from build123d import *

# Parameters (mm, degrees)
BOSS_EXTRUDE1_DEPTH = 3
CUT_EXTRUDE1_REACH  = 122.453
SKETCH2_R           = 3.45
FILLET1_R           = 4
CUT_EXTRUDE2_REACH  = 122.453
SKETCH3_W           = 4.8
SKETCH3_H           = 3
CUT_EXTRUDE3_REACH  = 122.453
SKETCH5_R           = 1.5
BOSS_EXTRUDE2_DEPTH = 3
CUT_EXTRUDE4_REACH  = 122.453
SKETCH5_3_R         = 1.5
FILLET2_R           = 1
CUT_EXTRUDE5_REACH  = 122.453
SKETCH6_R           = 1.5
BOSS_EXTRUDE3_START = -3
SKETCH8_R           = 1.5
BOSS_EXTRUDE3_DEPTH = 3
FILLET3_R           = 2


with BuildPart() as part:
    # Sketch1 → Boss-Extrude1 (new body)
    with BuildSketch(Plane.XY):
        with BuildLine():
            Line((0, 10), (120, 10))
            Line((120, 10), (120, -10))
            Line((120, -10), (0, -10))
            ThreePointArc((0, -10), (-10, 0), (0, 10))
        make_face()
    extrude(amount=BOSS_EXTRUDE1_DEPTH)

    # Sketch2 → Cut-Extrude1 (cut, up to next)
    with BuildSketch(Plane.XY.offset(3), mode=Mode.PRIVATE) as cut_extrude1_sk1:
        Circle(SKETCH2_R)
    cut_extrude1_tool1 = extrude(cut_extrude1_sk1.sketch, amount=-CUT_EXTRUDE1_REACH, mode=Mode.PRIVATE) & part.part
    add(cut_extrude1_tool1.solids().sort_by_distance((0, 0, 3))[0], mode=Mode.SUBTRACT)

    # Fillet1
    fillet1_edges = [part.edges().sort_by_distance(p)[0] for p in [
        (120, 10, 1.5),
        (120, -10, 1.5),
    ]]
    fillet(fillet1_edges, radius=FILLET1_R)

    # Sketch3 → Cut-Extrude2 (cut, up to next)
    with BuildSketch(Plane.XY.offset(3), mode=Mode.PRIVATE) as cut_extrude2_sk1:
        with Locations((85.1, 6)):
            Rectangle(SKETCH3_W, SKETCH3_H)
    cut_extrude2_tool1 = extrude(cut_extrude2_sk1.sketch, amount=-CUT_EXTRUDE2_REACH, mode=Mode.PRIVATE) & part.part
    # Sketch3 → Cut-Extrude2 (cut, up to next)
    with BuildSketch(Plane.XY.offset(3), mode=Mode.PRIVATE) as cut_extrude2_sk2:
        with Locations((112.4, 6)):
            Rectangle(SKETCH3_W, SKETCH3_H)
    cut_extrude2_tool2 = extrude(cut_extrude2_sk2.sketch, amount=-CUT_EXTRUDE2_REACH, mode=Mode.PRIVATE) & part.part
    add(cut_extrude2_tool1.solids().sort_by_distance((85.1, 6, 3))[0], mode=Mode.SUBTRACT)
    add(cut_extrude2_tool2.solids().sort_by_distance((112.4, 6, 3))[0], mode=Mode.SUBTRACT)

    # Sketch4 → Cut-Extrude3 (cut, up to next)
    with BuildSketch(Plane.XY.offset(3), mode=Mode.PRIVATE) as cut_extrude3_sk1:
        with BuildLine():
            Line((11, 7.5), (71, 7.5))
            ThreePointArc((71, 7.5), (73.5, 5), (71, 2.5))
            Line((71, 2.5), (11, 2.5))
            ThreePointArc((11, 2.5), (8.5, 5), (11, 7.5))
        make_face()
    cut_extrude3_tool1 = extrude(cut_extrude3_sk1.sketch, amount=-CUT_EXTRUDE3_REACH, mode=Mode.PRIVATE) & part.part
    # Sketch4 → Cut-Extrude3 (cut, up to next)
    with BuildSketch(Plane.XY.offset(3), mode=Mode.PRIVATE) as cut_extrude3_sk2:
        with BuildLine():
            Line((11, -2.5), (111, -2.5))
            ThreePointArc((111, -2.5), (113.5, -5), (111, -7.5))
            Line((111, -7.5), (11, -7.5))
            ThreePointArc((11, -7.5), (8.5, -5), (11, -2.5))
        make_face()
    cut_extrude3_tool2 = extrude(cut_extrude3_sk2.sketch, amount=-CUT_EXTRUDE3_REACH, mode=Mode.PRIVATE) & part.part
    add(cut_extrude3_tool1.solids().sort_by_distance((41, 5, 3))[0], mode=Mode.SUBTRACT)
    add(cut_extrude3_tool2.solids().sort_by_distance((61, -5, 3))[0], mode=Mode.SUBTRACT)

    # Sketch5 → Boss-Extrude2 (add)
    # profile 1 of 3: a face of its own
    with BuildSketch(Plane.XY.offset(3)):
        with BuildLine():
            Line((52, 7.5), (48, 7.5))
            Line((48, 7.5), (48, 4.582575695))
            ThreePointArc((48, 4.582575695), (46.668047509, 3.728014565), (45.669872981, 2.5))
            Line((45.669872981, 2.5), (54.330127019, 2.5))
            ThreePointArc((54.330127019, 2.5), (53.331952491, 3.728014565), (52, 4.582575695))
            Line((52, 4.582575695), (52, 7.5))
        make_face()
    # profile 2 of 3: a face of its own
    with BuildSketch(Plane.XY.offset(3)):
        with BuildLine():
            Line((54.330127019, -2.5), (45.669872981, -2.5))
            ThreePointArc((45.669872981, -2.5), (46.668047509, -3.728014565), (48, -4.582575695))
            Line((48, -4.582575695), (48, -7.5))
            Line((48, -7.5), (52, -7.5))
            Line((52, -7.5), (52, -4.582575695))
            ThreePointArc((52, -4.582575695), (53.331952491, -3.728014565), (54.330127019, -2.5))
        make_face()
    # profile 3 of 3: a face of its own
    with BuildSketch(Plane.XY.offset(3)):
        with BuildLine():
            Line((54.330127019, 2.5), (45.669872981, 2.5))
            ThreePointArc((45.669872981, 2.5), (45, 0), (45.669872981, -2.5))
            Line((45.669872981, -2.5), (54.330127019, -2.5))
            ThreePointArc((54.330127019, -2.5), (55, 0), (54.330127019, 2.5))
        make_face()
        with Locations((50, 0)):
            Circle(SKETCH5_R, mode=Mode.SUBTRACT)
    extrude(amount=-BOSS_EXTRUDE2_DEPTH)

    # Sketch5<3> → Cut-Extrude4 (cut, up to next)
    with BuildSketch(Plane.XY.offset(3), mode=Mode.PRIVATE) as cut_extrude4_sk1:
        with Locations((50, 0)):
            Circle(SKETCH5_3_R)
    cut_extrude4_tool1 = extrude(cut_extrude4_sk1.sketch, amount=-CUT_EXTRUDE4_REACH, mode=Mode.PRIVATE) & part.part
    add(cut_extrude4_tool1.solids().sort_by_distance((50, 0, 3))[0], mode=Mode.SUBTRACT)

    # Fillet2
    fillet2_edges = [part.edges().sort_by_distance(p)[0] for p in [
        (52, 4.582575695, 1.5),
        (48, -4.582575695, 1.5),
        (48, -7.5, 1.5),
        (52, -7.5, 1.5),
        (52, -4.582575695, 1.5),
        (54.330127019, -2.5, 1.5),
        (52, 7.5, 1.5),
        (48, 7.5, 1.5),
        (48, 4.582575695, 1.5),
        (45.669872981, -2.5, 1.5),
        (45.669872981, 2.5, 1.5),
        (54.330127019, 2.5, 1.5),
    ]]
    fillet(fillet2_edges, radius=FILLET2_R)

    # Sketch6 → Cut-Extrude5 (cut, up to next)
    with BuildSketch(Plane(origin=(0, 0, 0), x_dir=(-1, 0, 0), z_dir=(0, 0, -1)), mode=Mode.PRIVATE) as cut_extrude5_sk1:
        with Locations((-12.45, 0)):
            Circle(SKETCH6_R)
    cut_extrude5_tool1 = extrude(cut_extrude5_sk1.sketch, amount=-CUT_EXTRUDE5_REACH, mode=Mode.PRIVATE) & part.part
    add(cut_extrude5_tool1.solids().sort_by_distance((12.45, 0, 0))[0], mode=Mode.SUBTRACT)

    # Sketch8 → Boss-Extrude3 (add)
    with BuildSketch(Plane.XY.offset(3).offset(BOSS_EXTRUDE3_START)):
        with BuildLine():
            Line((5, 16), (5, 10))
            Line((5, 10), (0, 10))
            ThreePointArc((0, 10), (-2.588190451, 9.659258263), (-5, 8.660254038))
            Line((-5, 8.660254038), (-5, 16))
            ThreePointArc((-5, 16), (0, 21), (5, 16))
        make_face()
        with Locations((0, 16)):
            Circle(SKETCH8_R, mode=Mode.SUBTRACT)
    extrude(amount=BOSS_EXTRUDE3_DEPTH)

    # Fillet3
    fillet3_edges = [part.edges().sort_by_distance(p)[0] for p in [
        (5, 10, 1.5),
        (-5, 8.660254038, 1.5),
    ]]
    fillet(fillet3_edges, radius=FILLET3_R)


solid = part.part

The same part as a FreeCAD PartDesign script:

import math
import FreeCAD as App
import Part
import Sketcher
from FreeCAD import Vector


def edges_at(feature, points):
    """Names of the edges that pass closest to the given points."""
    edges = feature.Shape.Edges
    near = lambda p: min(range(len(edges)), key=lambda i: edges[i].distToShape(Part.Vertex(*p))[0])
    return sorted({f"Edge{near(p) + 1}" for p in points})


def add_polygon(sketch, points):
    """Adds a closed chain of lines whose ends are joined by coincident constraints."""
    first, n = sketch.GeometryCount, len(points)
    for a, b in zip(points, points[1:] + points[:1]):
        sketch.addGeometry(Part.LineSegment(App.Vector(*a, 0), App.Vector(*b, 0)), False)
    for i in range(n):
        sketch.addConstraint(Sketcher.Constraint("Coincident", first + i, 2, first + (i + 1) % n, 1))

doc = App.newDocument("Part")
body = doc.addObject("PartDesign::Body", "Body")

# Sketch on XY plane
sketch1 = body.newObject("Sketcher::SketchObject", "Sketch")
sketch1.AttachmentSupport = (doc.getObject("XY_Plane"), [""])
sketch1.MapMode = "FlatFace"
sketch1.addGeometry(Part.LineSegment(Vector(120, 10, 0), Vector(0, 10, 0)), False)
sketch1.addGeometry(Part.ArcOfCircle(Part.Circle(Vector(0, 0, 0), Vector(0, 0, 1), 10), math.radians(90), math.radians(270)), False)
sketch1.addGeometry(Part.LineSegment(Vector(0, -10, 0), Vector(120, -10, 0)), False)
sketch1.addGeometry(Part.LineSegment(Vector(120, -10, 0), Vector(120, 10, 0)), False)
sketch1.addConstraint(Sketcher.Constraint("Tangent", 0, 2, 1, 1))
sketch1.addConstraint(Sketcher.Constraint("Tangent", 1, 2, 2, 1))
sketch1.addConstraint(Sketcher.Constraint("Coincident", 2, 2, 3, 1))
sketch1.addConstraint(Sketcher.Constraint("Coincident", 3, 2, 0, 1))
sketch1.addConstraint(Sketcher.Constraint("Horizontal", 0))
sketch1.addConstraint(Sketcher.Constraint("Horizontal", 2))
sketch1.addConstraint(Sketcher.Constraint("Vertical", 3))
sketch1.addConstraint(Sketcher.Constraint("Coincident", 1, 3, -1, 1))
sketch1.addConstraint(Sketcher.Constraint("Radius", 1, 10.0))
sketch1.addConstraint(Sketcher.Constraint("DistanceX", 0, 2, 0, 1, 120.0))
pad1 = body.newObject("PartDesign::Pad", "Pad")
pad1.Profile = sketch1
pad1.Length = 3

# Sketch on XY plane
sketch2 = body.newObject("Sketcher::SketchObject", "Sketch001")
sketch2.AttachmentSupport = (doc.getObject("XY_Plane"), [""])
sketch2.MapMode = "FlatFace"
sketch2.AttachmentOffset = App.Placement(Vector(0, 0, 3), App.Rotation())
sketch2.addGeometry(Part.Circle(Vector(0, 0, 0), Vector(0, 0, 1), 3.5), False)
sketch2.addConstraint(Sketcher.Constraint("Coincident", 0, 3, -1, 1))
sketch2.addConstraint(Sketcher.Constraint("Diameter", 0, 6.9))
pocket1 = body.newObject("PartDesign::Pocket", "Pocket")
pocket1.Profile = sketch2
pocket1.Type = "UpToFirst"
doc.recompute()

fillet = body.newObject("PartDesign::Fillet", "Fillet")
fillet.Base = (pocket1, edges_at(pocket1, [(120, 10, 1.5), (120, -10, 1.5)]))
fillet.Radius = 4

# Sketch on XY plane
sketch3 = body.newObject("Sketcher::SketchObject", "Sketch002")
sketch3.AttachmentSupport = (doc.getObject("XY_Plane"), [""])
sketch3.MapMode = "FlatFace"
sketch3.AttachmentOffset = App.Placement(Vector(0, 0, 3), App.Rotation())
add_polygon(sketch3, [(82.7, 7.5), (82.7, 4.5), (87.5, 4.5), (87.5, 7.5)])  # lines 0-3
sketch3.addConstraint(Sketcher.Constraint("Vertical", 0))
sketch3.addConstraint(Sketcher.Constraint("Horizontal", 1))
sketch3.addConstraint(Sketcher.Constraint("Vertical", 2))
sketch3.addConstraint(Sketcher.Constraint("Horizontal", 3))
sketch3.addConstraint(Sketcher.Constraint("DistanceY", 0, 2, 0, 1, 3.0))
sketch3.addConstraint(Sketcher.Constraint("DistanceX", 1, 1, 1, 2, 4.8))
sketch3.addConstraint(Sketcher.Constraint("DistanceX", -1, 1, 0, 2, 82.7))
sketch3.addConstraint(Sketcher.Constraint("DistanceY", -1, 1, 0, 2, 4.5))
pocket2 = body.newObject("PartDesign::Pocket", "Pocket001")
pocket2.Profile = sketch3
pocket2.Type = "UpToFirst"

# Sketch on XY plane
sketch4 = body.newObject("Sketcher::SketchObject", "Sketch003")
sketch4.AttachmentSupport = (doc.getObject("XY_Plane"), [""])
sketch4.MapMode = "FlatFace"
sketch4.AttachmentOffset = App.Placement(Vector(0, 0, 3), App.Rotation())
add_polygon(sketch4, [(110, 7.5), (110, 4.5), (114.8, 4.5), (114.8, 7.5)])  # lines 0-3
sketch4.addConstraint(Sketcher.Constraint("Vertical", 0))
sketch4.addConstraint(Sketcher.Constraint("Horizontal", 1))
sketch4.addConstraint(Sketcher.Constraint("Vertical", 2))
sketch4.addConstraint(Sketcher.Constraint("Horizontal", 3))
sketch4.addConstraint(Sketcher.Constraint("DistanceY", 0, 2, 0, 1, 3.0))
sketch4.addConstraint(Sketcher.Constraint("DistanceX", 1, 1, 1, 2, 4.8))
sketch4.addConstraint(Sketcher.Constraint("DistanceX", -1, 1, 0, 2, 110.0))
sketch4.addConstraint(Sketcher.Constraint("DistanceY", -1, 1, 0, 2, 4.5))
pocket3 = body.newObject("PartDesign::Pocket", "Pocket002")
pocket3.Profile = sketch4
pocket3.Type = "UpToFirst"

# Sketch on XY plane
sketch5 = body.newObject("Sketcher::SketchObject", "Sketch004")
sketch5.AttachmentSupport = (doc.getObject("XY_Plane"), [""])
sketch5.MapMode = "FlatFace"
sketch5.AttachmentOffset = App.Placement(Vector(0, 0, 3), App.Rotation())
sketch5.addGeometry(Part.LineSegment(Vector(71, 7.5, 0), Vector(11, 7.5, 0)), False)
sketch5.addGeometry(Part.ArcOfCircle(Part.Circle(Vector(11, 5, 0), Vector(0, 0, 1), 2.5), math.radians(90), math.radians(270)), False)
sketch5.addGeometry(Part.LineSegment(Vector(11, 2.5, 0), Vector(71, 2.5, 0)), False)
sketch5.addGeometry(Part.ArcOfCircle(Part.Circle(Vector(71, 5, 0), Vector(0, 0, 1), 2.5), math.radians(-90), math.radians(90)), False)
sketch5.addConstraint(Sketcher.Constraint("Tangent", 0, 2, 1, 1))
sketch5.addConstraint(Sketcher.Constraint("Tangent", 1, 2, 2, 1))
sketch5.addConstraint(Sketcher.Constraint("Tangent", 2, 2, 3, 1))
sketch5.addConstraint(Sketcher.Constraint("Tangent", 3, 2, 0, 1))
sketch5.addConstraint(Sketcher.Constraint("Horizontal", 0))
sketch5.addConstraint(Sketcher.Constraint("Horizontal", 2))
sketch5.addConstraint(Sketcher.Constraint("Radius", 1, 2.5))
sketch5.addConstraint(Sketcher.Constraint("DistanceX", 0, 2, 0, 1, 60.0))
sketch5.addConstraint(Sketcher.Constraint("DistanceX", -1, 1, 1, 3, 11.0))
sketch5.addConstraint(Sketcher.Constraint("DistanceY", -1, 1, 1, 3, 5.0))
pocket4 = body.newObject("PartDesign::Pocket", "Pocket003")
pocket4.Profile = sketch5
pocket4.Type = "UpToFirst"

# Sketch on XY plane
sketch6 = body.newObject("Sketcher::SketchObject", "Sketch005")
sketch6.AttachmentSupport = (doc.getObject("XY_Plane"), [""])
sketch6.MapMode = "FlatFace"
sketch6.AttachmentOffset = App.Placement(Vector(0, 0, 3), App.Rotation())
sketch6.addGeometry(Part.LineSegment(Vector(111, -2.5, 0), Vector(11, -2.5, 0)), False)
sketch6.addGeometry(Part.ArcOfCircle(Part.Circle(Vector(11, -5, 0), Vector(0, 0, 1), 2.5), math.radians(90), math.radians(270)), False)
sketch6.addGeometry(Part.LineSegment(Vector(11, -7.5, 0), Vector(111, -7.5, 0)), False)
sketch6.addGeometry(Part.ArcOfCircle(Part.Circle(Vector(111, -5, 0), Vector(0, 0, 1), 2.5), math.radians(-90), math.radians(90)), False)
sketch6.addConstraint(Sketcher.Constraint("Tangent", 0, 2, 1, 1))
sketch6.addConstraint(Sketcher.Constraint("Tangent", 1, 2, 2, 1))
sketch6.addConstraint(Sketcher.Constraint("Tangent", 2, 2, 3, 1))
sketch6.addConstraint(Sketcher.Constraint("Tangent", 3, 2, 0, 1))
sketch6.addConstraint(Sketcher.Constraint("Horizontal", 0))
sketch6.addConstraint(Sketcher.Constraint("Horizontal", 2))
sketch6.addConstraint(Sketcher.Constraint("Radius", 1, 2.5))
sketch6.addConstraint(Sketcher.Constraint("DistanceX", 0, 2, 0, 1, 100.0))
sketch6.addConstraint(Sketcher.Constraint("DistanceX", -1, 1, 1, 3, 11.0))
sketch6.addConstraint(Sketcher.Constraint("DistanceY", 1, 3, -1, 1, 5.0))
pocket5 = body.newObject("PartDesign::Pocket", "Pocket004")
pocket5.Profile = sketch6
pocket5.Type = "UpToFirst"

# Sketch on XY plane
sketch7 = body.newObject("Sketcher::SketchObject", "Sketch006")
sketch7.AttachmentSupport = (doc.getObject("XY_Plane"), [""])
sketch7.MapMode = "FlatFace"
sketch7.AttachmentOffset = App.Placement(Vector(0, 0, 3), App.Rotation())
sketch7.addGeometry(Part.LineSegment(Vector(52, 7.5, 0), Vector(48, 7.5, 0)), False)
sketch7.addGeometry(Part.LineSegment(Vector(48, 7.5, 0), Vector(48, 4.6, 0)), False)
sketch7.addGeometry(Part.ArcOfCircle(Part.Circle(Vector(50, 0, 0), Vector(0, 0, 1), 5), math.radians(114), math.radians(150)), False)
sketch7.addGeometry(Part.ArcOfCircle(Part.Circle(Vector(50, 0, 0), Vector(0, 0, 1), 5), math.radians(150), math.radians(210)), False)
sketch7.addGeometry(Part.ArcOfCircle(Part.Circle(Vector(50, 0, 0), Vector(0, 0, 1), 5), math.radians(-150), math.radians(-114)), False)
sketch7.addGeometry(Part.LineSegment(Vector(48, -4.6, 0), Vector(48, -7.5, 0)), False)
sketch7.addGeometry(Part.LineSegment(Vector(48, -7.5, 0), Vector(52, -7.5, 0)), False)
sketch7.addGeometry(Part.LineSegment(Vector(52, -7.5, 0), Vector(52, -4.6, 0)), False)
sketch7.addGeometry(Part.ArcOfCircle(Part.Circle(Vector(50, 0, 0), Vector(0, 0, 1), 5), math.radians(-66), math.radians(-30)), False)
sketch7.addGeometry(Part.ArcOfCircle(Part.Circle(Vector(50, 0, 0), Vector(0, 0, 1), 5), math.radians(-30), math.radians(30)), False)
sketch7.addGeometry(Part.ArcOfCircle(Part.Circle(Vector(50, 0, 0), Vector(0, 0, 1), 5), math.radians(30), math.radians(66)), False)
sketch7.addGeometry(Part.LineSegment(Vector(52, 4.6, 0), Vector(52, 7.5, 0)), False)
sketch7.addGeometry(Part.Circle(Vector(50, 0, 0), Vector(0, 0, 1), 1.5), False)
sketch7.addConstraint(Sketcher.Constraint("Coincident", 0, 2, 1, 1))
sketch7.addConstraint(Sketcher.Constraint("Coincident", 1, 2, 2, 1))
sketch7.addConstraint(Sketcher.Constraint("Tangent", 2, 2, 3, 1))
sketch7.addConstraint(Sketcher.Constraint("Tangent", 3, 2, 4, 1))
sketch7.addConstraint(Sketcher.Constraint("Coincident", 4, 2, 5, 1))
sketch7.addConstraint(Sketcher.Constraint("Coincident", 5, 2, 6, 1))
sketch7.addConstraint(Sketcher.Constraint("Coincident", 6, 2, 7, 1))
sketch7.addConstraint(Sketcher.Constraint("Coincident", 7, 2, 8, 1))
sketch7.addConstraint(Sketcher.Constraint("Tangent", 8, 2, 9, 1))
sketch7.addConstraint(Sketcher.Constraint("Tangent", 9, 2, 10, 1))
sketch7.addConstraint(Sketcher.Constraint("Coincident", 10, 2, 11, 1))
sketch7.addConstraint(Sketcher.Constraint("Coincident", 11, 2, 0, 1))
sketch7.addConstraint(Sketcher.Constraint("Horizontal", 0))
sketch7.addConstraint(Sketcher.Constraint("Vertical", 1))
sketch7.addConstraint(Sketcher.Constraint("Vertical", 5))
sketch7.addConstraint(Sketcher.Constraint("Horizontal", 6))
sketch7.addConstraint(Sketcher.Constraint("Vertical", 7))
sketch7.addConstraint(Sketcher.Constraint("Vertical", 11))
sketch7.addConstraint(Sketcher.Constraint("Coincident", 4, 3, 2, 3))
sketch7.addConstraint(Sketcher.Constraint("Coincident", 8, 3, 2, 3))
sketch7.addConstraint(Sketcher.Constraint("Coincident", 10, 3, 2, 3))
sketch7.addConstraint(Sketcher.Constraint("Coincident", 12, 3, 2, 3))
sketch7.addConstraint(Sketcher.Constraint("Equal", 4, 8))
sketch7.addConstraint(Sketcher.Constraint("Symmetric", 2, 2, 3, 2, -1))
sketch7.addConstraint(Sketcher.Constraint("Symmetric", 0, 2, 5, 2, -1))
sketch7.addConstraint(Sketcher.Constraint("Horizontal", 4, 2, 7, 2))
sketch7.addConstraint(Sketcher.Constraint("Horizontal", 3, 2, 8, 2))
sketch7.addConstraint(Sketcher.Constraint("Horizontal", 2, 2, 9, 2))
sketch7.addConstraint(Sketcher.Constraint("Horizontal", 1, 2, 10, 2))
sketch7.addConstraint(Sketcher.Constraint("Diameter", 12, 3.0))
sketch7.addConstraint(Sketcher.Constraint("Radius", 2, 5.0))
sketch7.addConstraint(Sketcher.Constraint("DistanceX", 0, 2, 0, 1, 4.0))
sketch7.addConstraint(Sketcher.Constraint("DistanceX", -1, 1, 2, 3, 50.0))
sketch7.addConstraint(Sketcher.Constraint("DistanceY", 3, 2, 2, 2, 5.0))
sketch7.addConstraint(Sketcher.Constraint("DistanceY", 5, 2, 3, 2, 5.0))
pad2 = body.newObject("PartDesign::Pad", "Pad001")
pad2.Profile = sketch7
pad2.Length = 3
pad2.Reversed = True

# Sketch on XY plane
sketch8 = body.newObject("Sketcher::SketchObject", "Sketch007")
sketch8.AttachmentSupport = (doc.getObject("XY_Plane"), [""])
sketch8.MapMode = "FlatFace"
sketch8.AttachmentOffset = App.Placement(Vector(0, 0, 3), App.Rotation())
sketch8.addGeometry(Part.Circle(Vector(50, 0, 0), Vector(0, 0, 1), 1.5), False)
sketch8.addConstraint(Sketcher.Constraint("PointOnObject", 0, 3, -1))
sketch8.addConstraint(Sketcher.Constraint("Diameter", 0, 3.0))
sketch8.addConstraint(Sketcher.Constraint("DistanceX", -1, 1, 0, 3, 50.0))
pocket6 = body.newObject("PartDesign::Pocket", "Pocket005")
pocket6.Profile = sketch8
pocket6.Type = "UpToFirst"
doc.recompute()

fillet2 = body.newObject("PartDesign::Fillet", "Fillet001")
fillet2.Base = (pocket6, edges_at(pocket6, [
    (52, 4.583, 1.5),
    (48, -4.583, 1.5),
    (48, -7.5, 1.5),
    (52, -7.5, 1.5),
    (52, -4.583, 1.5),
    (54.33, -2.5, 1.5),
    (52, 7.5, 1.5),
    (48, 7.5, 1.5),
    (48, 4.583, 1.5),
    (45.67, -2.5, 1.5),
    (45.67, 2.5, 1.5),
    (54.33, 2.5, 1.5),
]))
fillet2.Radius = 1

# Sketch on XY plane
sketch9 = body.newObject("Sketcher::SketchObject", "Sketch008")
sketch9.AttachmentSupport = (doc.getObject("XY_Plane"), [""])
sketch9.MapMode = "FlatFace"
sketch9.addGeometry(Part.Circle(Vector(12.4, 0, 0), Vector(0, 0, 1), 1.5), False)
sketch9.addConstraint(Sketcher.Constraint("PointOnObject", 0, 3, -1))
sketch9.addConstraint(Sketcher.Constraint("Diameter", 0, 3.0))
sketch9.addConstraint(Sketcher.Constraint("DistanceX", -1, 1, 0, 3, 12.45))
pocket7 = body.newObject("PartDesign::Pocket", "Pocket006")
pocket7.Profile = sketch9
pocket7.Type = "UpToFirst"
pocket7.Reversed = True

# Sketch on XY plane
sketch10 = body.newObject("Sketcher::SketchObject", "Sketch009")
sketch10.AttachmentSupport = (doc.getObject("XY_Plane"), [""])
sketch10.MapMode = "FlatFace"
sketch10.addGeometry(Part.LineSegment(Vector(5, 10, 0), Vector(5, 16, 0)), False)
sketch10.addGeometry(Part.ArcOfCircle(Part.Circle(Vector(0, 16, 0), Vector(0, 0, 1), 5), math.radians(0), math.radians(180)), False)
sketch10.addGeometry(Part.LineSegment(Vector(-5, 16, 0), Vector(-5, 8.7, 0)), False)
sketch10.addGeometry(Part.ArcOfCircle(Part.Circle(Vector(0, 0, 0), Vector(0, 0, 1), 10), math.radians(90), math.radians(120)), False)
sketch10.addGeometry(Part.LineSegment(Vector(0, 10, 0), Vector(5, 10, 0)), False)
sketch10.addGeometry(Part.Circle(Vector(0, 16, 0), Vector(0, 0, 1), 1.5), False)
sketch10.addConstraint(Sketcher.Constraint("Tangent", 0, 2, 1, 1))
sketch10.addConstraint(Sketcher.Constraint("Tangent", 1, 2, 2, 1))
sketch10.addConstraint(Sketcher.Constraint("Coincident", 2, 2, 3, 2))
sketch10.addConstraint(Sketcher.Constraint("Tangent", 3, 1, 4, 1))
sketch10.addConstraint(Sketcher.Constraint("Coincident", 4, 2, 0, 1))
sketch10.addConstraint(Sketcher.Constraint("Vertical", 0))
sketch10.addConstraint(Sketcher.Constraint("Vertical", 2))
sketch10.addConstraint(Sketcher.Constraint("Horizontal", 4))
sketch10.addConstraint(Sketcher.Constraint("Coincident", 3, 3, -1, 1))
sketch10.addConstraint(Sketcher.Constraint("Coincident", 5, 3, 1, 3))
sketch10.addConstraint(Sketcher.Constraint("PointOnObject", 1, 3, -2))
sketch10.addConstraint(Sketcher.Constraint("Diameter", 5, 3.0))
sketch10.addConstraint(Sketcher.Constraint("Radius", 1, 5.0))
sketch10.addConstraint(Sketcher.Constraint("Radius", 3, 10.0))
sketch10.addConstraint(Sketcher.Constraint("DistanceY", 0, 1, 0, 2, 6.0))
pad3 = body.newObject("PartDesign::Pad", "Pad002")
pad3.Profile = sketch10
pad3.Length = 3
doc.recompute()

fillet3 = body.newObject("PartDesign::Fillet", "Fillet002")
fillet3.Base = (pad3, edges_at(pad3, [(5, 10, 1.5), (-5, 8.66, 1.5)]))
fillet3.Radius = 2

doc.recompute()
